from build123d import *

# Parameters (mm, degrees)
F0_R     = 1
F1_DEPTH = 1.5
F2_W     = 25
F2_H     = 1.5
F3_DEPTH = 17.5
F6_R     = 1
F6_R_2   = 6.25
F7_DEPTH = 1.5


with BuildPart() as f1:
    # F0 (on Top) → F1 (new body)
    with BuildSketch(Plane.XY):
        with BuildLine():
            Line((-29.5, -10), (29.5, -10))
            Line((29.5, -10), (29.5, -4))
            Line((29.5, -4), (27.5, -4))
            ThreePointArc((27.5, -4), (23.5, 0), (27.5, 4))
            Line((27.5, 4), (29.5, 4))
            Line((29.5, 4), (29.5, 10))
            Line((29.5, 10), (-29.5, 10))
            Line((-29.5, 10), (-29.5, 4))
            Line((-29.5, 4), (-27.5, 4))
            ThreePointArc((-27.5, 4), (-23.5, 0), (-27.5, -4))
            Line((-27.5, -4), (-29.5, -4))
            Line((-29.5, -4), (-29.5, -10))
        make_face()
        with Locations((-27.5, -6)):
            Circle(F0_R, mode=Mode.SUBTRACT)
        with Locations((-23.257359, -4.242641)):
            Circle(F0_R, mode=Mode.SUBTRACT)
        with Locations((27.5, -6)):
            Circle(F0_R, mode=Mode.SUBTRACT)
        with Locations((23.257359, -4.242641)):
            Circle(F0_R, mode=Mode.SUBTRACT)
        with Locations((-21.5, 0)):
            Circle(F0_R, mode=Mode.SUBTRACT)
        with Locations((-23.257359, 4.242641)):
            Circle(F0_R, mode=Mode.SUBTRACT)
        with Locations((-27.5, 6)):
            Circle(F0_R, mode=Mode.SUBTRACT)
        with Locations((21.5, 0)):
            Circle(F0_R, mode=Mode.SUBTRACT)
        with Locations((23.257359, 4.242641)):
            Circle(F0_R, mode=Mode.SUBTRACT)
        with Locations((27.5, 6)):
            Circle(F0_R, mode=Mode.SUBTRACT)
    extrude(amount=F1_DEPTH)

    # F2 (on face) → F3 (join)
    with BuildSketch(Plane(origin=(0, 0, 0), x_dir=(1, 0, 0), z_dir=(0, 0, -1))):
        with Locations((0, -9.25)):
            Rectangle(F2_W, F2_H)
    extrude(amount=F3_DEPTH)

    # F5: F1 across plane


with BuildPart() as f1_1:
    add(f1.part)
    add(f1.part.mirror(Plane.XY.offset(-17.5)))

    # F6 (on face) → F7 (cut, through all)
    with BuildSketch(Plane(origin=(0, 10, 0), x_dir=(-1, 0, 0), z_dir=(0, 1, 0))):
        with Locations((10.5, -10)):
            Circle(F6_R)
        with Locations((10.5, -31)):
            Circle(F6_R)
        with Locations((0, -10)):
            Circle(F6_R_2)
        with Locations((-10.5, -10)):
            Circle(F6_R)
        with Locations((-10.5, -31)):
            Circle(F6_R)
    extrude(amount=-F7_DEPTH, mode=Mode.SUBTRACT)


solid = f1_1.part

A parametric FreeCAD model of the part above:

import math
import FreeCAD as App
import Part
import Sketcher

V = App.Vector
Q = App.Units.Quantity


def add_polygon(sketch, points):
    """Adds a closed chain of lines whose ends are joined by coincident constraints."""
    first, n = sketch.GeometryCount, len(points)
    for a, b in zip(points, points[1:] + points[:1]):
        sketch.addGeometry(Part.LineSegment(App.Vector(*a, 0), App.Vector(*b, 0)), False)
    for i in range(n):
        sketch.addConstraint(Sketcher.Constraint("Coincident", first + i, 2, first + (i + 1) % n, 1))

doc = App.newDocument("Part")
body = doc.addObject("PartDesign::Body", "Body")

# Sketch on XY plane
sketch1 = body.newObject("Sketcher::SketchObject", "Sketch")
sketch1.AttachmentSupport = (doc.getObject("XY_Plane"), [""])
sketch1.MapMode = "FlatFace"
sketch1.addGeometry([
    Part.LineSegment(V(-29.5, -10, 0), V(29.5, -10, 0)),  # 0
    Part.LineSegment(V(29.5, -10, 0), V(29.5, -4, 0)),  # 1
    Part.LineSegment(V(29.5, -4, 0), V(27.5, -4, 0)),  # 2
    Part.ArcOfCircle(Part.Circle(V(27.5, 0, 0), V(0, 0, 1), 4), math.radians(90), math.radians(270)),  # 3
    Part.LineSegment(V(27.5, 4, 0), V(29.5, 4, 0)),  # 4
    Part.LineSegment(V(29.5, 4, 0), V(29.5, 10, 0)),  # 5
    Part.LineSegment(V(29.5, 10, 0), V(-29.5, 10, 0)),  # 6
    Part.LineSegment(V(-29.5, 10, 0), V(-29.5, 4, 0)),  # 7
    Part.LineSegment(V(-29.5, 4, 0), V(-27.5, 4, 0)),  # 8
    Part.ArcOfCircle(Part.Circle(V(-27.5, 0, 0), V(0, 0, 1), 4), math.radians(-90), math.radians(90)),  # 9
    Part.LineSegment(V(-27.5, -4, 0), V(-29.5, -4, 0)),  # 10
    Part.LineSegment(V(-29.5, -4, 0), V(-29.5, -10, 0)),  # 11
    Part.Circle(V(-27.5, -6, 0), V(0, 0, 1), 1),  # 12
    Part.Circle(V(-23.3, -4.2, 0), V(0, 0, 1), 1),  # 13
    Part.Circle(V(27.5, -6, 0), V(0, 0, 1), 1),  # 14
    Part.Circle(V(23.3, -4.2, 0), V(0, 0, 1), 1),  # 15
    Part.Circle(V(-21.5, 0, 0), V(0, 0, 1), 1),  # 16
    Part.Circle(V(-23.3, 4.2, 0), V(0, 0, 1), 1),  # 17
    Part.Circle(V(-27.5, 6, 0), V(0, 0, 1), 1),  # 18
    Part.Circle(V(21.5, 0, 0), V(0, 0, 1), 1),  # 19
    Part.Circle(V(23.3, 4.2, 0), V(0, 0, 1), 1),  # 20
    Part.Circle(V(27.5, 6, 0), V(0, 0, 1), 1),  # 21
], False)
sketch1.addConstraint([
    Sketcher.Constraint("Coincident", 0, 2, 1, 1),
    Sketcher.Constraint("Coincident", 1, 2, 2, 1),
    Sketcher.Constraint("Tangent", 2, 2, 3, 2),
    Sketcher.Constraint("Tangent", 3, 1, 4, 1),
    Sketcher.Constraint("Coincident", 4, 2, 5, 1),
    Sketcher.Constraint("Coincident", 5, 2, 6, 1),
    Sketcher.Constraint("Coincident", 6, 2, 7, 1),
    Sketcher.Constraint("Coincident", 7, 2, 8, 1),
    Sketcher.Constraint("Tangent", 8, 2, 9, 2),
    Sketcher.Constraint("Tangent", 9, 1, 10, 1),
    Sketcher.Constraint("Coincident", 10, 2, 11, 1),
    Sketcher.Constraint("Coincident", 11, 2, 0, 1),
    Sketcher.Constraint("Horizontal", 0),
    Sketcher.Constraint("Vertical", 1),
    Sketcher.Constraint("Horizontal", 2),
    Sketcher.Constraint("Horizontal", 4),
    Sketcher.Constraint("Vertical", 5),
    Sketcher.Constraint("Horizontal", 6),
    Sketcher.Constraint("Vertical", 7),
    Sketcher.Constraint("Horizontal", 8),
    Sketcher.Constraint("Horizontal", 10),
    Sketcher.Constraint("Vertical", 11),
    Sketcher.Constraint("Equal", 3, 9),
    Sketcher.Constraint("Equal", 12, 13),
    Sketcher.Constraint("Equal", 13, 14),
    Sketcher.Constraint("Equal", 14, 15),
    Sketcher.Constraint("Equal", 15, 16),
    Sketcher.Constraint("Equal", 16, 17),
    Sketcher.Constraint("Equal", 17, 18),
    Sketcher.Constraint("Equal", 18, 19),
    Sketcher.Constraint("Equal", 19, 20),
    Sketcher.Constraint("Equal", 20, 21),
    Sketcher.Constraint("Symmetric", 3, 3, 9, 3, -1, 1),
    Sketcher.Constraint("Symmetric", 15, 3, 17, 3, -1, 1),
    Sketcher.Constraint("Symmetric", 14, 3, 18, 3, -1, 1),
    Sketcher.Constraint("Symmetric", 16, 3, 19, 3, -1, 1),
    Sketcher.Constraint("Symmetric", 13, 3, 20, 3, -1, 1),
    Sketcher.Constraint("Symmetric", 12, 3, 21, 3, -1, 1),
    Sketcher.Constraint("Symmetric", 0, 2, 6, 2, -1, 1),
    Sketcher.Constraint("Symmetric", 12, 3, 14, 3, -2),
    Sketcher.Constraint("Symmetric", 13, 3, 15, 3, -2),
    Sketcher.Constraint("Symmetric", 4, 2, 7, 2, -2),
    Sketcher.Constraint("PointOnObject", 16, 3, -1),
    Sketcher.Constraint("Vertical", 9, 3, 12, 3),
    Sketcher.Constraint("Vertical", 7, 2, 10, 2),
    Sketcher.Constraint("Diameter", 12, Q("2 mm")),
    Sketcher.Constraint("Radius", 3, Q("4 mm")),
    Sketcher.Constraint("DistanceX", 0, 1, 0, 2, Q("59 mm")),
    Sketcher.Constraint("DistanceX", 2, 2, 2, 1, Q("2 mm")),
    Sketcher.Constraint("DistanceY", 1, 1, 1, 2, Q("6 mm")),
    Sketcher.Constraint("DistanceY", 12, 3, -1, 1, Q("6 mm")),
    Sketcher.Constraint("DistanceX", 9, 3, 16, 3, Q("6 mm")),
    Sketcher.Constraint("DistanceX", 13, 3, -1, 1, Q("23.257359 mm")),
    Sketcher.Constraint("DistanceY", 13, 3, -1, 1, Q("4.242641 mm")),
])
pad1 = body.newObject("PartDesign::Pad", "Pad")
pad1.Profile = sketch1
pad1.Length = 1.5

# Sketch on XY plane
sketch2 = body.newObject("Sketcher::SketchObject", "Sketch001")
sketch2.AttachmentSupport = (doc.getObject("XY_Plane"), [""])
sketch2.MapMode = "FlatFace"
add_polygon(sketch2, [(-12.5, 8.5), (-12.5, 10), (12.5, 10), (12.5, 8.5)])  # lines 0-3
sketch2.addConstraint([
    Sketcher.Constraint("Vertical", 0),
    Sketcher.Constraint("Horizontal", 1),
    Sketcher.Constraint("Vertical", 2),
    Sketcher.Constraint("Horizontal", 3),
    Sketcher.Constraint("DistanceX", 1, 1, 1, 2, Q("25 mm")),
    Sketcher.Constraint("DistanceY", 0, 1, 0, 2, Q("1.5 mm")),
    Sketcher.Constraint("DistanceY", -1, 1, 0, 2, Q("10 mm")),
    Sketcher.Constraint("DistanceX", 0, 2, -1, 1, Q("12.5 mm")),
])
pad2 = body.newObject("PartDesign::Pad", "Pad001")
pad2.Profile = sketch2
pad2.Length = 17.5
pad2.Reversed = True
body2 = doc.addObject("PartDesign::Body", "Body001")
doc.recompute()

body2.BaseFeature = body
doc.recompute()

mirroring = doc.addObject("Part::Mirroring", "Mirroring")
mirroring.Source = body
mirroring.Base = V(0, 0, -17.5)
mirroring.Normal = V(0, 0, 1)
body3 = doc.addObject("PartDesign::Body", "Body002")
body3.BaseFeature = mirroring
boolean = body2.newObject("PartDesign::Boolean", "Boolean")
boolean.Type = "Fuse"
boolean.addObjects([body3])
doc.recompute()

# Sketch on XZ plane
sketch3 = body2.newObject("Sketcher::SketchObject", "Sketch002")
sketch3.AttachmentSupport = (doc.getObject("XZ_Plane001"), [""])
sketch3.MapMode = "FlatFace"
sketch3.AttachmentOffset = App.Placement(V(0, 0, -10), App.Rotation())
sketch3.addGeometry([
    Part.Circle(V(-10.5, -10, 0), V(0, 0, 1), 1),  # 0
    Part.Circle(V(-10.5, -31, 0), V(0, 0, 1), 1),  # 1
    Part.Circle(V(0, -10, 0), V(0, 0, 1), 6.2),  # 2
    Part.Circle(V(10.5, -10, 0), V(0, 0, 1), 1),  # 3
    Part.Circle(V(10.5, -31, 0), V(0, 0, 1), 1),  # 4
], False)
sketch3.addConstraint([
    Sketcher.Constraint("Equal", 0, 1),
    Sketcher.Constraint("Equal", 1, 3),
    Sketcher.Constraint("Equal", 3, 4),
    Sketcher.Constraint("Symmetric", 0, 3, 3, 3, -2),
    Sketcher.Constraint("Symmetric", 1, 3, 4, 3, -2),
    Sketcher.Constraint("PointOnObject", 2, 3, -2),
    Sketcher.Constraint("Horizontal", 0, 3, 2, 3),
    Sketcher.Constraint("Vertical", 0, 3, 1, 3),
    Sketcher.Constraint("Diameter", 0, Q("2 mm")),
    Sketcher.Constraint("Diameter", 2, Q("12.5 mm")),
    Sketcher.Constraint("DistanceY", 0, 3, -1, 1, Q("10 mm")),
    Sketcher.Constraint("DistanceY", 1, 3, -1, 1, Q("31 mm")),
    Sketcher.Constraint("DistanceX", 0, 3, 3, 3, Q("21 mm")),
])
pocket1 = body2.newObject("PartDesign::Pocket", "Pocket")
pocket1.Profile = sketch3
pocket1.Type = "ThroughAll"
pocket1.Reversed = True
mirroring.Visibility = False

doc.recompute()
